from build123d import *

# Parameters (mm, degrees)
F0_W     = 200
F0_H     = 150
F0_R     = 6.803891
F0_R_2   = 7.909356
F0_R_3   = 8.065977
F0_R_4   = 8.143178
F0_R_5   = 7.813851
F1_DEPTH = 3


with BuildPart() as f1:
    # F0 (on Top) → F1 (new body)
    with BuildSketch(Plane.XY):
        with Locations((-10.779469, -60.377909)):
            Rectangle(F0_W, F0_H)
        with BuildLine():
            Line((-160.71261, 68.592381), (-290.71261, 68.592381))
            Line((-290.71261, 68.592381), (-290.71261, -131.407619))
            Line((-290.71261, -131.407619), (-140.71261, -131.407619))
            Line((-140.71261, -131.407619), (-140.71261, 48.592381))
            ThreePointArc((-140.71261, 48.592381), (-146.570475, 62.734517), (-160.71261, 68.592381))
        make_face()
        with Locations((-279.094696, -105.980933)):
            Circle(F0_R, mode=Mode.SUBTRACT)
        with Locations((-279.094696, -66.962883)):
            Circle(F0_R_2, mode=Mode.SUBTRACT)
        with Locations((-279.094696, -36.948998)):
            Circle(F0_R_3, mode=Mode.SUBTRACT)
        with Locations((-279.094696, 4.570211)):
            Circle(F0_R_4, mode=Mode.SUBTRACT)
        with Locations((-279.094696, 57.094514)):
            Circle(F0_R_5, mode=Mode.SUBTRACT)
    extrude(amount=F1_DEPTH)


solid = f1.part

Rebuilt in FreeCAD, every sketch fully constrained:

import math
import FreeCAD as App
import Part
import Sketcher
from FreeCAD import Vector
Q = App.Units.Quantity


def add_polygon(sketch, points):
    """Adds a closed chain of lines whose ends are joined by coincident constraints."""
    first, n = sketch.GeometryCount, len(points)
    for a, b in zip(points, points[1:] + points[:1]):
        sketch.addGeometry(Part.LineSegment(App.Vector(*a, 0), App.Vector(*b, 0)), False)
    for i in range(n):
        sketch.addConstraint(Sketcher.Constraint("Coincident", first + i, 2, first + (i + 1) % n, 1))

doc = App.newDocument("Part")
body = doc.addObject("PartDesign::Body", "Body")
body.AllowCompound = True

# Sketch on XY plane
sketch1 = doc.addObject("Sketcher::SketchObject", "Sketch")
body.addObject(sketch1)
sketch1.AttachmentSupport = (doc.XY_Plane, [""])
sketch1.MapMode = "FlatFace"
add_polygon(sketch1, [(-111, 15), (-111, -135), (89, -135), (89, 15)])  # lines 0-3
sketch1.addGeometry(Part.LineSegment(Vector(-161, 69, 0), Vector(-291, 69, 0)), False)  # 4
sketch1.addGeometry(Part.LineSegment(Vector(-291, 69, 0), Vector(-291, -131, 0)), False)  # 5
sketch1.addGeometry(Part.LineSegment(Vector(-291, -131, 0), Vector(-141, -131, 0)), False)  # 6
sketch1.addGeometry(Part.LineSegment(Vector(-141, -131, 0), Vector(-141, 49, 0)), False)  # 7
sketch1.addGeometry(Part.ArcOfCircle(Part.Circle(Vector(-161, 49, 0), Vector(0, 0, 1), 20), math.radians(0), math.radians(90)), False)  # 8
sketch1.addGeometry(Part.Circle(Vector(-279, -106, 0), Vector(0, 0, 1), 7), False)  # 9
sketch1.addGeometry(Part.Circle(Vector(-279, -67, 0), Vector(0, 0, 1), 8), False)  # 10
sketch1.addGeometry(Part.Circle(Vector(-279, -37, 0), Vector(0, 0, 1), 8), False)  # 11
sketch1.addGeometry(Part.Circle(Vector(-279, 5, 0), Vector(0, 0, 1), 8), False)  # 12
sketch1.addGeometry(Part.Circle(Vector(-279, 57, 0), Vector(0, 0, 1), 8), False)  # 13
sketch1.addConstraint([
    Sketcher.Constraint("Coincident", 4, 2, 5, 1),
    Sketcher.Constraint("Coincident", 5, 2, 6, 1),
    Sketcher.Constraint("Coincident", 6, 2, 7, 1),
    Sketcher.Constraint("Tangent", 7, 2, 8, 1),
    Sketcher.Constraint("Tangent", 8, 2, 4, 1),
    Sketcher.Constraint("Vertical", 0),
    Sketcher.Constraint("Horizontal", 1),
    Sketcher.Constraint("Vertical", 2),
    Sketcher.Constraint("Horizontal", 3),
    Sketcher.Constraint("Horizontal", 4),
    Sketcher.Constraint("Vertical", 5),
    Sketcher.Constraint("Horizontal", 6),
    Sketcher.Constraint("Vertical", 7),
    Sketcher.Constraint("Vertical", 9, 3, 10, 3),
    Sketcher.Constraint("Vertical", 10, 3, 11, 3),
    Sketcher.Constraint("Vertical", 11, 3, 12, 3),
    Sketcher.Constraint("Vertical", 12, 3, 13, 3),
    Sketcher.Constraint("Equal", 6, 0),
    Sketcher.Constraint("Equal", 3, 5),
    Sketcher.Constraint("Radius", 8, Q("20 mm")),
    Sketcher.Constraint("DistanceX", 1, 1, 1, 2, Q("200 mm")),
    Sketcher.Constraint("DistanceX", 4, 2, 4, 1, Q("130 mm")),
    Sketcher.Constraint("Diameter", 13, Q("15.627702 mm")),
    Sketcher.Constraint("Diameter", 9, Q("13.607782 mm")),
    Sketcher.Constraint("Diameter", 10, Q("15.818712 mm")),
    Sketcher.Constraint("Diameter", 11, Q("16.131954 mm")),
    Sketcher.Constraint("Diameter", 12, Q("16.286356 mm")),
    Sketcher.Constraint("DistanceY", 11, 3, -1, 1, Q("36.948998 mm")),
    Sketcher.Constraint("DistanceX", 8, 3, -1, 1, Q("160.71261 mm")),
    Sketcher.Constraint("DistanceY", -1, 1, 8, 3, Q("48.592381 mm")),
    Sketcher.Constraint("DistanceY", -1, 1, 12, 3, Q("4.570211 mm")),
    Sketcher.Constraint("DistanceX", 0, 2, -1, 1, Q("110.779469 mm")),
    Sketcher.Constraint("DistanceY", 0, 2, -1, 1, Q("135.377909 mm")),
    Sketcher.Constraint("DistanceY", 9, 3, 10, 3, Q("39.01805 mm")),
    Sketcher.Constraint("DistanceY", 11, 3, 13, 3, Q("94.043512 mm")),
    Sketcher.Constraint("DistanceX", 9, 3, -1, 1, Q("279.094696 mm")),
    Sketcher.Constraint("DistanceY", 9, 3, -1, 1, Q("105.980933 mm")),
])
pad1 = doc.addObject("PartDesign::Pad", "Pad")
body.addObject(pad1)
pad1.Profile = sketch1
pad1.Length = 3

doc.recompute()
